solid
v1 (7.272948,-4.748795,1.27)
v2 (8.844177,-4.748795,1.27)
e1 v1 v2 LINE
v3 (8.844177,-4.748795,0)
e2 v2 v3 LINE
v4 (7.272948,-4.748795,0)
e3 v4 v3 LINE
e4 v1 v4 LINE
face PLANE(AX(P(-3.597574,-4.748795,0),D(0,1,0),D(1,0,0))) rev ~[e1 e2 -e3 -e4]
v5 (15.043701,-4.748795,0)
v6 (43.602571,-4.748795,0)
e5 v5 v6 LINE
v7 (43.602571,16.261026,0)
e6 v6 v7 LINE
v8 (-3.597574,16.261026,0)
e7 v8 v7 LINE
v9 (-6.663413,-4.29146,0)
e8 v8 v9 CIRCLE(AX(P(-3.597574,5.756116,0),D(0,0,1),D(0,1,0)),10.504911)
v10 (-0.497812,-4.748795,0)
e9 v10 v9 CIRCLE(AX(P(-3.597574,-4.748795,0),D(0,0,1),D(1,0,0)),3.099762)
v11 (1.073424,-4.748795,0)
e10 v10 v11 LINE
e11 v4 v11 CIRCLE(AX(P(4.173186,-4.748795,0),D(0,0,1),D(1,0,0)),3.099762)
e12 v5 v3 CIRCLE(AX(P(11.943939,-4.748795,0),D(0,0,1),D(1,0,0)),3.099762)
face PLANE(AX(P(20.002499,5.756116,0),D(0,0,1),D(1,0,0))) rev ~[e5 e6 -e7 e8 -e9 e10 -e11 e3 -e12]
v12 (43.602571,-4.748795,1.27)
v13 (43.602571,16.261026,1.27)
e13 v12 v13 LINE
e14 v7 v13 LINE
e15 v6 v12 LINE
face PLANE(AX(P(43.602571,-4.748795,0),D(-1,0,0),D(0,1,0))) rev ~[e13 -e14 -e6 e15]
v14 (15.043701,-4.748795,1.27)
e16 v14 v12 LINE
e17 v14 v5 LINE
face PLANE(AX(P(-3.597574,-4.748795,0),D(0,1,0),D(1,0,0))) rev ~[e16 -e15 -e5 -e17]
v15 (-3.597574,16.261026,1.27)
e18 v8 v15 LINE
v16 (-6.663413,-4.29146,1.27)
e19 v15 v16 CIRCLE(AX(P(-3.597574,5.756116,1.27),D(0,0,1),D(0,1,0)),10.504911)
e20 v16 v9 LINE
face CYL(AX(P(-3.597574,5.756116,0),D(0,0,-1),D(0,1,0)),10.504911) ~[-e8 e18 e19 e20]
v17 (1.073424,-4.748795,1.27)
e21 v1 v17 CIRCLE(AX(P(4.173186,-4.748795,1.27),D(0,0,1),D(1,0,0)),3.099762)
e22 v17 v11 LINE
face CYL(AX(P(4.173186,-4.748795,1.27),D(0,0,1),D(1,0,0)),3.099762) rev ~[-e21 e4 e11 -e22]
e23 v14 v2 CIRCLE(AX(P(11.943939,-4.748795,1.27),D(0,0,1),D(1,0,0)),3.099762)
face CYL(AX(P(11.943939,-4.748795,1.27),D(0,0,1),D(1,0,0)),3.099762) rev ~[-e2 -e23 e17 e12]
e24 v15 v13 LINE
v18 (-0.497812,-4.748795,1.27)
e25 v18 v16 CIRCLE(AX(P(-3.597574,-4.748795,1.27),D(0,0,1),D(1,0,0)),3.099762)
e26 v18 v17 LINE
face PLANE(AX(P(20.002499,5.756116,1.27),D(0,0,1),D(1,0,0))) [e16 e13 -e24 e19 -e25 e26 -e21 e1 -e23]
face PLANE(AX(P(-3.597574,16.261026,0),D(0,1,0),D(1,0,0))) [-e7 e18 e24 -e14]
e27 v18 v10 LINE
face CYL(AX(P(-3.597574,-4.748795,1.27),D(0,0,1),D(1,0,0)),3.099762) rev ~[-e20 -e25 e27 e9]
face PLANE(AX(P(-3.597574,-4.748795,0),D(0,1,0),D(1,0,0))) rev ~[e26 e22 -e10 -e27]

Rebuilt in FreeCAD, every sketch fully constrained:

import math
import FreeCAD as App
import Part
import Sketcher
Q = App.Units.Quantity

doc = App.newDocument("Part")
body = doc.addObject("PartDesign::Body", "Body")

# Sketch on XY plane
sketch1 = body.newObject("Sketcher::SketchObject", "Sketch")
sketch1.AttachmentSupport = (doc.getObject("XY_Plane"), [""])
sketch1.MapMode = "FlatFace"
sketch1.addGeometry(Part.LineSegment(App.Vector(-3.597574, -4.748795, 0), App.Vector(43.602571, -4.748795, 0)), False)
sketch1.addGeometry(Part.LineSegment(App.Vector(43.602571, -4.748795, 0), App.Vector(43.602571, 16.261026, 0)), False)
sketch1.addGeometry(Part.LineSegment(App.Vector(43.602571, 16.261026, 0), App.Vector(-3.597574, 16.261026, 0)), False)
sketch1.addGeometry(Part.ArcOfCircle(Part.Circle(App.Vector(-3.597574, 5.756116, 0), App.Vector(0, 0, 1), 10.504911), math.radians(90), math.radians(270)), False)
sketch1.addConstraint(Sketcher.Constraint("Coincident", 0, 2, 1, 1))
sketch1.addConstraint(Sketcher.Constraint("Coincident", 1, 2, 2, 1))
sketch1.addConstraint(Sketcher.Constraint("Tangent", 2, 2, 3, 1))
sketch1.addConstraint(Sketcher.Constraint("Tangent", 3, 2, 0, 1))
sketch1.addConstraint(Sketcher.Constraint("Horizontal", 0))
sketch1.addConstraint(Sketcher.Constraint("Vertical", 1))
sketch1.addConstraint(Sketcher.Constraint("Horizontal", 2))
sketch1.addConstraint(Sketcher.Constraint("Radius", 3, 10.504911))
sketch1.addConstraint(Sketcher.Constraint("DistanceX", 0, 1, 0, 2, 47.200145))
sketch1.addConstraint(Sketcher.Constraint("DistanceX", -1, 1, 0, 2, 43.602571))
sketch1.addConstraint(Sketcher.Constraint("DistanceY", -1, 1, 3, 3, 5.756116))
pad1 = body.newObject("PartDesign::Pad", "Pad")
pad1.Profile = sketch1
pad1.Length = Q("0.05 in")

# Sketch on XY plane
sketch2 = body.newObject("Sketcher::SketchObject", "Sketch001")
sketch2.AttachmentSupport = (doc.getObject("XY_Plane"), [""])
sketch2.MapMode = "FlatFace"
sketch2.AttachmentOffset = App.Placement(App.Vector(0, 0, 0.05 * 25.4), App.Rotation())
sketch2.addGeometry(Part.ArcOfCircle(Part.Circle(App.Vector(4.173186, -4.748795, 0), App.Vector(0, 0, 1), 3.099762), math.radians(180), math.radians(360)), False)
sketch2.addGeometry(Part.ArcOfCircle(Part.Circle(App.Vector(4.173186, -4.748795, 0), App.Vector(0, 0, 1), 3.099762), math.radians(0), math.radians(180)), False)
sketch2.addGeometry(Part.LineSegment(App.Vector(-3.597574, -4.748795, 0), App.Vector(-0.497812, -4.748795, 0)), False)
sketch2.addGeometry(Part.ArcOfCircle(Part.Circle(App.Vector(-3.597574, -4.748795, 0), App.Vector(0, 0, 1), 3.099762), math.radians(0), math.radians(171.515682)), False)
sketch2.addGeometry(Part.ArcOfCircle(Part.Circle(App.Vector(-3.597574, 5.756116, 0), App.Vector(0, 0, 1), 10.504911), math.radians(-106.968637), math.radians(-90)), False)
sketch2.addGeometry(Part.ArcOfCircle(Part.Circle(App.Vector(11.943939, -4.748795, 0), App.Vector(0, 0, 1), 3.099762), math.radians(0), math.radians(180)), False)
sketch2.addGeometry(Part.LineSegment(App.Vector(8.844177, -4.748795, 0), App.Vector(15.043701, -4.748795, 0)), False)
sketch2.addConstraint(Sketcher.Constraint("Tangent", 0, 1, 1, 2))
sketch2.addConstraint(Sketcher.Constraint("Coincident", 1, 1, 0, 2))
sketch2.addConstraint(Sketcher.Constraint("Coincident", 2, 2, 3, 1))
sketch2.addConstraint(Sketcher.Constraint("Coincident", 3, 2, 4, 1))
sketch2.addConstraint(Sketcher.Constraint("Tangent", 4, 2, 2, 1))
sketch2.addConstraint(Sketcher.Constraint("Coincident", 5, 1, 6, 2))
sketch2.addConstraint(Sketcher.Constraint("Coincident", 6, 1, 5, 2))
sketch2.addConstraint(Sketcher.Constraint("Horizontal", 2))
sketch2.addConstraint(Sketcher.Constraint("Horizontal", 6))
sketch2.addConstraint(Sketcher.Constraint("Coincident", 4, 2, 3, 3))
sketch2.addConstraint(Sketcher.Constraint("Equal", 1, 3))
sketch2.addConstraint(Sketcher.Constraint("Equal", 3, 5))
sketch2.addConstraint(Sketcher.Constraint("Horizontal", 1, 3, 3, 3))
sketch2.addConstraint(Sketcher.Constraint("Horizontal", 3, 3, 5, 3))
sketch2.addConstraint(Sketcher.Constraint("Horizontal", 5, 3, 0, 1))
sketch2.addConstraint(Sketcher.Constraint("Horizontal", 0, 1, 1, 1))
sketch2.addConstraint(Sketcher.Constraint("Horizontal", 4, 2, 5, 1))
sketch2.addConstraint(Sketcher.Constraint("Radius", 4, 10.504911))
sketch2.addConstraint(Sketcher.Constraint("Radius", 0, 3.099762))
sketch2.addConstraint(Sketcher.Constraint("DistanceX", 3, 2, 0, 1, Q("0.3045999 in")))
sketch2.addConstraint(Sketcher.Constraint("DistanceX", -1, 1, 5, 1, 15.043701))
sketch2.addConstraint(Sketcher.Constraint("DistanceX", 2, 2, -1, 1, 0.497812))
sketch2.addConstraint(Sketcher.Constraint("DistanceY", 3, 2, -1, 1, 4.29146))
pocket1 = body.newObject("PartDesign::Pocket", "Pocket")
pocket1.Profile = sketch2
pocket1.Length = Q("1 in")

doc.recompute()
